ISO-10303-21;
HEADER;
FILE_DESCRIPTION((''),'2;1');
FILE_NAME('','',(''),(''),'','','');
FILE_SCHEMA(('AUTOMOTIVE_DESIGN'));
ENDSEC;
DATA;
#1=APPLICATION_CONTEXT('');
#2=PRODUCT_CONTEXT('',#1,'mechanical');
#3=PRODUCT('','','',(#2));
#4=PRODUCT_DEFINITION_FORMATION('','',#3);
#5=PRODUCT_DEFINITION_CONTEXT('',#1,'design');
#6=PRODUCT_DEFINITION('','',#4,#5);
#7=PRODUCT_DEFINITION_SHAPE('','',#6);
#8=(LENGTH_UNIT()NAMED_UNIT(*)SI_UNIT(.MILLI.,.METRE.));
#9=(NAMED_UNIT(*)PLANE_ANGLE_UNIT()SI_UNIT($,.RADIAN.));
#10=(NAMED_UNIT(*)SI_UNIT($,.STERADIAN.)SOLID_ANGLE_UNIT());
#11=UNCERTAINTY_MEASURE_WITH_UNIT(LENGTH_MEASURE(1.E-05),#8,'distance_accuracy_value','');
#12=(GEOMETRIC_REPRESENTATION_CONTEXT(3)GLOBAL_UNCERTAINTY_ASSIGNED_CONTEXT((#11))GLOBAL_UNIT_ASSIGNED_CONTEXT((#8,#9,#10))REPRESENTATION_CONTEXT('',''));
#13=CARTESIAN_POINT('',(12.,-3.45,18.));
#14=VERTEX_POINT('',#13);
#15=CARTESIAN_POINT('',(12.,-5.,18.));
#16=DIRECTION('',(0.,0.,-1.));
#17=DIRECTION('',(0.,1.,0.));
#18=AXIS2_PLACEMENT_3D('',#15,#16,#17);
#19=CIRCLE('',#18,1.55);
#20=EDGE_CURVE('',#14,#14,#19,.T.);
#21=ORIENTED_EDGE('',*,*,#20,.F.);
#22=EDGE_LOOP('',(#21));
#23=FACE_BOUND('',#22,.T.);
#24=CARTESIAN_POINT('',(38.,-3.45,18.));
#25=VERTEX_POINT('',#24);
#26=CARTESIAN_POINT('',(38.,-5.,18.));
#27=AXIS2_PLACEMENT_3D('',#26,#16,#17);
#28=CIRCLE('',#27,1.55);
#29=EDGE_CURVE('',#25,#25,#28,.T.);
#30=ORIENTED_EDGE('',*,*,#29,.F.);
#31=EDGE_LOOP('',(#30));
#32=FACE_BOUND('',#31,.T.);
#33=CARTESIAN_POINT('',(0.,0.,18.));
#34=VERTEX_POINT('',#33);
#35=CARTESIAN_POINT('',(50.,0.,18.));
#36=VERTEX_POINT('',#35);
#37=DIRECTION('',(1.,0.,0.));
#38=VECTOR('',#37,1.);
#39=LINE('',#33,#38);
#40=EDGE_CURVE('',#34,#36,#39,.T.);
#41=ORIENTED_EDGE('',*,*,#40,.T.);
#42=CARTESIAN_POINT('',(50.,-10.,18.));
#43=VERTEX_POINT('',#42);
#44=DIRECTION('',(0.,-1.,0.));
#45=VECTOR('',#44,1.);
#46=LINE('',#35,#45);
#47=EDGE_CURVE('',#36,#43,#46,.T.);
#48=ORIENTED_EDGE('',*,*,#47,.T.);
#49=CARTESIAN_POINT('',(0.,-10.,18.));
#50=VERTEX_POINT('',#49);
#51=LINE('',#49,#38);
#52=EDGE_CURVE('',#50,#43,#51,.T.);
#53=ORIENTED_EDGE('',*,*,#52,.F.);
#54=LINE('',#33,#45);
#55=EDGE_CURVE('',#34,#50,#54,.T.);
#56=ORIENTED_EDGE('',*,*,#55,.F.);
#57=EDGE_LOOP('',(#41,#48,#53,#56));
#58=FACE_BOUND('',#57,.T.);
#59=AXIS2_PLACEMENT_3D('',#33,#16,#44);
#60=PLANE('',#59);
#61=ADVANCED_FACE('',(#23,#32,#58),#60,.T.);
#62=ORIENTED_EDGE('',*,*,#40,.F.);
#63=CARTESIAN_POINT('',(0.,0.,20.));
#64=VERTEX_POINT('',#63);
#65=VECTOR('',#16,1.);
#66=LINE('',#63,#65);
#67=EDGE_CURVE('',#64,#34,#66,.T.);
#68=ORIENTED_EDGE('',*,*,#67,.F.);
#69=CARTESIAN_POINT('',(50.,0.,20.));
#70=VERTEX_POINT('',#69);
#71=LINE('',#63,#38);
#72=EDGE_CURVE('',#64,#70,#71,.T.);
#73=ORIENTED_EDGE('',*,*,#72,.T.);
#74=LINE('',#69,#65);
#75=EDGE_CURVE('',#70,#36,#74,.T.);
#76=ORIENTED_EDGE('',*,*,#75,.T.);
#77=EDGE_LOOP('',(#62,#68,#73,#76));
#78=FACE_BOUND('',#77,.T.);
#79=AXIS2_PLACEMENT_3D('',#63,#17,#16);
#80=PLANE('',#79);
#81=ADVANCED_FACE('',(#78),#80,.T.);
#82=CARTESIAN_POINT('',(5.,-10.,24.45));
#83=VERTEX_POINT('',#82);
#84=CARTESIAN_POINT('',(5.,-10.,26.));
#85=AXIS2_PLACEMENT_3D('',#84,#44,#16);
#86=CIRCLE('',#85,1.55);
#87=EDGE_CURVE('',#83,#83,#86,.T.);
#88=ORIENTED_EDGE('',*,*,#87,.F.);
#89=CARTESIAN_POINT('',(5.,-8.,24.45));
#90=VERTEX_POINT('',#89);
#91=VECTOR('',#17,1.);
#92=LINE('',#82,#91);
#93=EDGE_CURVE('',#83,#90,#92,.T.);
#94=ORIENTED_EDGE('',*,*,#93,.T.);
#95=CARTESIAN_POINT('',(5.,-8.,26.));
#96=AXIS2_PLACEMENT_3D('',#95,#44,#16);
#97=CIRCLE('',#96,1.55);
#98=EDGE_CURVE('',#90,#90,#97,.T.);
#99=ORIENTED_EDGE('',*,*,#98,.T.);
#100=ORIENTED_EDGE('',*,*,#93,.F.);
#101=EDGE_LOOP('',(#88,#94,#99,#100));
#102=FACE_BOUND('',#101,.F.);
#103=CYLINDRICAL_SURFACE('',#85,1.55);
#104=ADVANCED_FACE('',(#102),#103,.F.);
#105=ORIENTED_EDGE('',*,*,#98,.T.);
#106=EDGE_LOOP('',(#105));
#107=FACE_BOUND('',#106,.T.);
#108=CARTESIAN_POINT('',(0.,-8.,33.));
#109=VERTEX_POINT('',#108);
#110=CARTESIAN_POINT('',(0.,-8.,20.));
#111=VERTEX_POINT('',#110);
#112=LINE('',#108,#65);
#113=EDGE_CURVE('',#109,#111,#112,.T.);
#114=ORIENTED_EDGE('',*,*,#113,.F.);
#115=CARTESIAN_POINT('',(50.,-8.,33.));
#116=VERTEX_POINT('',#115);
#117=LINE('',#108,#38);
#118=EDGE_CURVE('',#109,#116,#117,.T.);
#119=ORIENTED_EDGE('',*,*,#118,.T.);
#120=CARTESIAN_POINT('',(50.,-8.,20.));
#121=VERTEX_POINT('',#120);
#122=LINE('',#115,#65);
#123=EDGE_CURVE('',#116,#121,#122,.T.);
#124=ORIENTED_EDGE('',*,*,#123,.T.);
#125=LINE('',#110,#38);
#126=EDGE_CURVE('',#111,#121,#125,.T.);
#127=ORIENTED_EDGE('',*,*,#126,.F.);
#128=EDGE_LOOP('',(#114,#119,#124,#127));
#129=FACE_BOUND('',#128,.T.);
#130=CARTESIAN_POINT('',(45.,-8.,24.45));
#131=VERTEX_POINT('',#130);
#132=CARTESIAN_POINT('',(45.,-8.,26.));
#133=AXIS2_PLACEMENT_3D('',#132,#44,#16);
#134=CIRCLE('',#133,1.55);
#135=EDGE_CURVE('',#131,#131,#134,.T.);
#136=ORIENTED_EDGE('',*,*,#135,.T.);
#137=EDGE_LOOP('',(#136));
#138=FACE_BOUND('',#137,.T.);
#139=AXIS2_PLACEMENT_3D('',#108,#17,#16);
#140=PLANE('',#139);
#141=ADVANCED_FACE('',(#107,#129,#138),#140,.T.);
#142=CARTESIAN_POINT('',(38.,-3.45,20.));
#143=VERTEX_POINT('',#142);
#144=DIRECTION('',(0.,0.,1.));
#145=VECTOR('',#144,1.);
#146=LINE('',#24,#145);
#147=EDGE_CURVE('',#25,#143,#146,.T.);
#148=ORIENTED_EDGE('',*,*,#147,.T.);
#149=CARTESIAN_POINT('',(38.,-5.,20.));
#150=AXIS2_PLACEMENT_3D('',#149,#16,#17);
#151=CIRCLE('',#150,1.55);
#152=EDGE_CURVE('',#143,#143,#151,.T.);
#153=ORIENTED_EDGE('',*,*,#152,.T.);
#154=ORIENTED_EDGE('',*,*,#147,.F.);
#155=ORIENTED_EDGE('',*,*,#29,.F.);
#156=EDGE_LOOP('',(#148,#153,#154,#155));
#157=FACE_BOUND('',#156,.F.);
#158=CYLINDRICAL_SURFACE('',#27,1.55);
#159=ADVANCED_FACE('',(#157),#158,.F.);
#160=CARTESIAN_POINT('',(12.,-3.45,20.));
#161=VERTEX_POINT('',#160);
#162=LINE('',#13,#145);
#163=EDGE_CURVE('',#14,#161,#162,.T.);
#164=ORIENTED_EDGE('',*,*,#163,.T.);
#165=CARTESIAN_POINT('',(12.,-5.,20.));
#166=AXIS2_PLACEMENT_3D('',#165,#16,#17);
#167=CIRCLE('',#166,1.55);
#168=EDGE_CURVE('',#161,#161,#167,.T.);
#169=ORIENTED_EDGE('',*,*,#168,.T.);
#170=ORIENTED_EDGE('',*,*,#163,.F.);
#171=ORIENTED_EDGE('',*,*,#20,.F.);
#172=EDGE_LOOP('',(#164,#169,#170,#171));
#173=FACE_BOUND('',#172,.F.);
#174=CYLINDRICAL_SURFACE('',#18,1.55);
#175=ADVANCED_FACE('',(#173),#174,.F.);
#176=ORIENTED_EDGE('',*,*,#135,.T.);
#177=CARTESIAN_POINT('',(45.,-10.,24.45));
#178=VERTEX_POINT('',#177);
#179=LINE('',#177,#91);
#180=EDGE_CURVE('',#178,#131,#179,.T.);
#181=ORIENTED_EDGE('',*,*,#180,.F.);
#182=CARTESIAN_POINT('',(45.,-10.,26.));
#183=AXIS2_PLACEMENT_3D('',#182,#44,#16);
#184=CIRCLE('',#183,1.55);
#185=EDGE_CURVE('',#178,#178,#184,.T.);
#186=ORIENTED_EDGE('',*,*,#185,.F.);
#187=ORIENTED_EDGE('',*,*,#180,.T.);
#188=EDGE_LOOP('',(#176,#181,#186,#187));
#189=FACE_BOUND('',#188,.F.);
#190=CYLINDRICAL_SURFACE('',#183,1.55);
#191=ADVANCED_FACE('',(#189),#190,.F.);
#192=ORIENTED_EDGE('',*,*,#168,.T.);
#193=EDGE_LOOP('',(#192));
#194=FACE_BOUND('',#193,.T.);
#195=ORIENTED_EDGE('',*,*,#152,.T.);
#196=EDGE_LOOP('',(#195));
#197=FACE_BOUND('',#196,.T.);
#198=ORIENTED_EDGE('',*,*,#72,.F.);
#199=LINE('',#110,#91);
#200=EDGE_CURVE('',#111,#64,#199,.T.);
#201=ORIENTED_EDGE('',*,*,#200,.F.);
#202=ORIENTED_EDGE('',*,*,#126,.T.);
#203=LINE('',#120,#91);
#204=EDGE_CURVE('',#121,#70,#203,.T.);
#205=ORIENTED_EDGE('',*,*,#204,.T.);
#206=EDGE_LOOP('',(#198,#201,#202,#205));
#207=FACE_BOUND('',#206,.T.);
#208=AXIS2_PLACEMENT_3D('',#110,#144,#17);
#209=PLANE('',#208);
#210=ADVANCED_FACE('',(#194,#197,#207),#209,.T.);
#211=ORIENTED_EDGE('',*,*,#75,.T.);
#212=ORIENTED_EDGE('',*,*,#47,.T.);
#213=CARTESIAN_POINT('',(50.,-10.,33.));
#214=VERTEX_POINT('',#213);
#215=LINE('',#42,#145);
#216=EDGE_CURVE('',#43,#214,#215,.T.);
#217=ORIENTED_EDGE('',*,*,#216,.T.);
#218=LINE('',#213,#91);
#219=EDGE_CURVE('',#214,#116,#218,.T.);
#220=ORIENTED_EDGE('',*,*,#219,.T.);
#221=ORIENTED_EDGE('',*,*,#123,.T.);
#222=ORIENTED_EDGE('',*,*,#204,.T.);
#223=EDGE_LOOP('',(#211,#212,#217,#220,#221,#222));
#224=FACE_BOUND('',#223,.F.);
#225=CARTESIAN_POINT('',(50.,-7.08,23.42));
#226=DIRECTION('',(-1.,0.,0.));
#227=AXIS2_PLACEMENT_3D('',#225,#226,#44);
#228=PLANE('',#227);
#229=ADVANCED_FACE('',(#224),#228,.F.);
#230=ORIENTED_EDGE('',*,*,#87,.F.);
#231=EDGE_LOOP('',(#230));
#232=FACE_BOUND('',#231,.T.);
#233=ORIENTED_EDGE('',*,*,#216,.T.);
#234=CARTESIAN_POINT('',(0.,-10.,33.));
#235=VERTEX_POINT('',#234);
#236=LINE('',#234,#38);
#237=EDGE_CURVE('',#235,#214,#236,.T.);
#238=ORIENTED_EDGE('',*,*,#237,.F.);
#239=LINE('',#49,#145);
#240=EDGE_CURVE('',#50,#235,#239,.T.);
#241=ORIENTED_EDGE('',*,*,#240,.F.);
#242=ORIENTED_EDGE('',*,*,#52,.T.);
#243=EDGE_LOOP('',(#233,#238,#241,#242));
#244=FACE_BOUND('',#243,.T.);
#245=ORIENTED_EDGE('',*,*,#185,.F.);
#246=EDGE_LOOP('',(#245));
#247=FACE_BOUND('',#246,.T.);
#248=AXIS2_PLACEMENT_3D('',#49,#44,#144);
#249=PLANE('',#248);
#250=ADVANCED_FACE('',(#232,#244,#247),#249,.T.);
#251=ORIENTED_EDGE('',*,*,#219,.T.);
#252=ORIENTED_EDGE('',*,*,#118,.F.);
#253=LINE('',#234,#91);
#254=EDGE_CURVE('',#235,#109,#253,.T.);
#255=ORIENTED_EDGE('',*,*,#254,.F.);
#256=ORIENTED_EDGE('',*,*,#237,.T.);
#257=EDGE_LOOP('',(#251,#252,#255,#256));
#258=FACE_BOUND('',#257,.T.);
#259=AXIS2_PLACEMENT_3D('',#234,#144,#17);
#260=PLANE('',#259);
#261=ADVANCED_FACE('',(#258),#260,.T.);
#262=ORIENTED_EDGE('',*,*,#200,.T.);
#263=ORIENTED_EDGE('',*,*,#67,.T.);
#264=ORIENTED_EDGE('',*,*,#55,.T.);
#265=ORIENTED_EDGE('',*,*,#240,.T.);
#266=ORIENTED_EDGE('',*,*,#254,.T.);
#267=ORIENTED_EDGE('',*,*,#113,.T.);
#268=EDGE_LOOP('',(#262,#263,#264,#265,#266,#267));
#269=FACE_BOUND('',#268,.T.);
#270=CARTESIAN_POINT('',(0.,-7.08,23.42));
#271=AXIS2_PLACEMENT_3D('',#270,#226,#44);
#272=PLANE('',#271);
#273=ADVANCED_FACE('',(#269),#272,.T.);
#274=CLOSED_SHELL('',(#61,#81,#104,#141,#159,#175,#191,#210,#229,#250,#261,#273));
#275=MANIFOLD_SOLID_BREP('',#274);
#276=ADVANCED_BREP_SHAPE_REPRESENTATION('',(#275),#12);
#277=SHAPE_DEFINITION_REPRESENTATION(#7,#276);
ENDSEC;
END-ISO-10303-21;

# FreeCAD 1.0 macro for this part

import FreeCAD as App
import Part
import Sketcher
Q = App.Units.Quantity

doc = App.newDocument("Part")
params = doc.addObject("Spreadsheet::Sheet", "Params")
for row, (alias, value) in enumerate([
    ("sketch1_width", "10 mm"),
    ("sketch1_width2", "8 mm"),
    ("sketch1_height", "15 mm"),
    ("pad1_length", "50 mm"),
    ("sketch2_diameter", "3.1 mm"),
    ("sketch3_diameter", "3.1 mm"),
], start=1):
    params.set(f"A{row}", alias)
    params.set(f"B{row}", "=" + value)
    params.setAlias(f"B{row}", alias)

body = doc.addObject("PartDesign::Body", "Body")

# Sketch on YZ plane
sketch1 = doc.addObject("Sketcher::SketchObject", "Sketch")
body.addObject(sketch1)
sketch1.AttachmentSupport = (doc.YZ_Plane, [""])
sketch1.MapMode = "FlatFace"
sketch1.addGeometry([
    Part.LineSegment(App.Vector(0, 15, 0), App.Vector(0, 0, 0)),  # 0
    Part.LineSegment(App.Vector(0, 0, 0), App.Vector(10, 0, 0)),  # 1
    Part.LineSegment(App.Vector(10, 0, 0), App.Vector(10, 2, 0)),  # 2
    Part.LineSegment(App.Vector(10, 2, 0), App.Vector(2, 2, 0)),  # 3
    Part.LineSegment(App.Vector(2, 2, 0), App.Vector(2, 15, 0)),  # 4
    Part.LineSegment(App.Vector(2, 15, 0), App.Vector(0, 15, 0)),  # 5
], False)
sketch1.addConstraint([
    Sketcher.Constraint("Coincident", 0, 2, 1, 1),
    Sketcher.Constraint("Coincident", 1, 2, 2, 1),
    Sketcher.Constraint("Coincident", 2, 2, 3, 1),
    Sketcher.Constraint("Coincident", 3, 2, 4, 1),
    Sketcher.Constraint("Coincident", 4, 2, 5, 1),
    Sketcher.Constraint("Coincident", 5, 2, 0, 1),
    Sketcher.Constraint("Vertical", 0),
    Sketcher.Constraint("Horizontal", 1),
    Sketcher.Constraint("Vertical", 2),
    Sketcher.Constraint("Horizontal", 3),
    Sketcher.Constraint("Vertical", 4),
    Sketcher.Constraint("Horizontal", 5),
    Sketcher.Constraint("Coincident", 0, 2, -1, 1),
    Sketcher.Constraint("Equal", 5, 2),
    Sketcher.Constraint("DistanceX", 1, 1, 1, 2, Q("10 mm")),
    Sketcher.Constraint("DistanceX", 3, 2, 3, 1, Q("8 mm")),
    Sketcher.Constraint("DistanceY", 0, 2, 0, 1, Q("15 mm")),
])
sketch1.setExpression("Constraints[14]", "Params.sketch1_width")
sketch1.setExpression("Constraints[15]", "Params.sketch1_width2")
sketch1.setExpression("Constraints[16]", "Params.sketch1_height")
pad1 = doc.addObject("PartDesign::Pad", "Pad")
body.addObject(pad1)
pad1.Profile = sketch1
pad1.setExpression("Length", "Params.pad1_length")

# Sketch on XY plane
sketch2 = doc.addObject("Sketcher::SketchObject", "Sketch001")
body.addObject(sketch2)
sketch2.AttachmentSupport = (doc.XY_Plane, [""])
sketch2.MapMode = "FlatFace"
sketch2.addGeometry([
    Part.Circle(App.Vector(38, 5, 0), App.Vector(0, 0, 1), 1.6),
    Part.Circle(App.Vector(12, 5, 0), App.Vector(0, 0, 1), 1.6),
], False)
sketch2.addConstraint([
    Sketcher.Constraint("Equal", 0, 1),
    Sketcher.Constraint("Horizontal", 0, 3, 1, 3),
    Sketcher.Constraint("Diameter", 0, Q("3.1 mm")),
    Sketcher.Constraint("DistanceX", -1, 1, 0, 3, Q("38 mm")),
    Sketcher.Constraint("DistanceY", -1, 1, 0, 3, Q("5 mm")),
    Sketcher.Constraint("DistanceX", -1, 1, 1, 3, Q("12 mm")),
])
sketch2.setExpression("Constraints[2]", "Params.sketch2_diameter")
pocket1 = doc.addObject("PartDesign::Pocket", "Pocket")
body.addObject(pocket1)
pocket1.Profile = sketch2
pocket1.Type = "ThroughAll"
pocket1.Reversed = True

# Sketch on XZ plane
sketch3 = doc.addObject("Sketcher::SketchObject", "Sketch002")
body.addObject(sketch3)
sketch3.AttachmentSupport = (doc.XZ_Plane, [""])
sketch3.MapMode = "FlatFace"
sketch3.addGeometry([
    Part.Circle(App.Vector(45, 8, 0), App.Vector(0, 0, 1), 1.6),
    Part.Circle(App.Vector(5, 8, 0), App.Vector(0, 0, 1), 1.6),
], False)
sketch3.addConstraint([
    Sketcher.Constraint("Equal", 0, 1),
    Sketcher.Constraint("Horizontal", 0, 3, 1, 3),
    Sketcher.Constraint("Diameter", 0, Q("3.1 mm")),
    Sketcher.Constraint("DistanceX", -1, 1, 0, 3, Q("45 mm")),
    Sketcher.Constraint("DistanceY", -1, 1, 0, 3, Q("8 mm")),
    Sketcher.Constraint("DistanceX", -1, 1, 1, 3, Q("5 mm")),
])
sketch3.setExpression("Constraints[2]", "Params.sketch3_diameter")
pocket2 = doc.addObject("PartDesign::Pocket", "Pocket001")
body.addObject(pocket2)
pocket2.Profile = sketch3
pocket2.Type = "ThroughAll"
body2 = doc.addObject("PartDesign::Body", "Body001")
doc.recompute()

body.Placement = App.Placement(App.Vector(0, -10, 18), App.Rotation(App.Vector(0, 0, 1), 0))
boolean = doc.addObject("PartDesign::Boolean", "Boolean")
body2.addObject(boolean)
boolean.Type = "Fuse"
boolean.addObjects([body])

doc.recompute()
